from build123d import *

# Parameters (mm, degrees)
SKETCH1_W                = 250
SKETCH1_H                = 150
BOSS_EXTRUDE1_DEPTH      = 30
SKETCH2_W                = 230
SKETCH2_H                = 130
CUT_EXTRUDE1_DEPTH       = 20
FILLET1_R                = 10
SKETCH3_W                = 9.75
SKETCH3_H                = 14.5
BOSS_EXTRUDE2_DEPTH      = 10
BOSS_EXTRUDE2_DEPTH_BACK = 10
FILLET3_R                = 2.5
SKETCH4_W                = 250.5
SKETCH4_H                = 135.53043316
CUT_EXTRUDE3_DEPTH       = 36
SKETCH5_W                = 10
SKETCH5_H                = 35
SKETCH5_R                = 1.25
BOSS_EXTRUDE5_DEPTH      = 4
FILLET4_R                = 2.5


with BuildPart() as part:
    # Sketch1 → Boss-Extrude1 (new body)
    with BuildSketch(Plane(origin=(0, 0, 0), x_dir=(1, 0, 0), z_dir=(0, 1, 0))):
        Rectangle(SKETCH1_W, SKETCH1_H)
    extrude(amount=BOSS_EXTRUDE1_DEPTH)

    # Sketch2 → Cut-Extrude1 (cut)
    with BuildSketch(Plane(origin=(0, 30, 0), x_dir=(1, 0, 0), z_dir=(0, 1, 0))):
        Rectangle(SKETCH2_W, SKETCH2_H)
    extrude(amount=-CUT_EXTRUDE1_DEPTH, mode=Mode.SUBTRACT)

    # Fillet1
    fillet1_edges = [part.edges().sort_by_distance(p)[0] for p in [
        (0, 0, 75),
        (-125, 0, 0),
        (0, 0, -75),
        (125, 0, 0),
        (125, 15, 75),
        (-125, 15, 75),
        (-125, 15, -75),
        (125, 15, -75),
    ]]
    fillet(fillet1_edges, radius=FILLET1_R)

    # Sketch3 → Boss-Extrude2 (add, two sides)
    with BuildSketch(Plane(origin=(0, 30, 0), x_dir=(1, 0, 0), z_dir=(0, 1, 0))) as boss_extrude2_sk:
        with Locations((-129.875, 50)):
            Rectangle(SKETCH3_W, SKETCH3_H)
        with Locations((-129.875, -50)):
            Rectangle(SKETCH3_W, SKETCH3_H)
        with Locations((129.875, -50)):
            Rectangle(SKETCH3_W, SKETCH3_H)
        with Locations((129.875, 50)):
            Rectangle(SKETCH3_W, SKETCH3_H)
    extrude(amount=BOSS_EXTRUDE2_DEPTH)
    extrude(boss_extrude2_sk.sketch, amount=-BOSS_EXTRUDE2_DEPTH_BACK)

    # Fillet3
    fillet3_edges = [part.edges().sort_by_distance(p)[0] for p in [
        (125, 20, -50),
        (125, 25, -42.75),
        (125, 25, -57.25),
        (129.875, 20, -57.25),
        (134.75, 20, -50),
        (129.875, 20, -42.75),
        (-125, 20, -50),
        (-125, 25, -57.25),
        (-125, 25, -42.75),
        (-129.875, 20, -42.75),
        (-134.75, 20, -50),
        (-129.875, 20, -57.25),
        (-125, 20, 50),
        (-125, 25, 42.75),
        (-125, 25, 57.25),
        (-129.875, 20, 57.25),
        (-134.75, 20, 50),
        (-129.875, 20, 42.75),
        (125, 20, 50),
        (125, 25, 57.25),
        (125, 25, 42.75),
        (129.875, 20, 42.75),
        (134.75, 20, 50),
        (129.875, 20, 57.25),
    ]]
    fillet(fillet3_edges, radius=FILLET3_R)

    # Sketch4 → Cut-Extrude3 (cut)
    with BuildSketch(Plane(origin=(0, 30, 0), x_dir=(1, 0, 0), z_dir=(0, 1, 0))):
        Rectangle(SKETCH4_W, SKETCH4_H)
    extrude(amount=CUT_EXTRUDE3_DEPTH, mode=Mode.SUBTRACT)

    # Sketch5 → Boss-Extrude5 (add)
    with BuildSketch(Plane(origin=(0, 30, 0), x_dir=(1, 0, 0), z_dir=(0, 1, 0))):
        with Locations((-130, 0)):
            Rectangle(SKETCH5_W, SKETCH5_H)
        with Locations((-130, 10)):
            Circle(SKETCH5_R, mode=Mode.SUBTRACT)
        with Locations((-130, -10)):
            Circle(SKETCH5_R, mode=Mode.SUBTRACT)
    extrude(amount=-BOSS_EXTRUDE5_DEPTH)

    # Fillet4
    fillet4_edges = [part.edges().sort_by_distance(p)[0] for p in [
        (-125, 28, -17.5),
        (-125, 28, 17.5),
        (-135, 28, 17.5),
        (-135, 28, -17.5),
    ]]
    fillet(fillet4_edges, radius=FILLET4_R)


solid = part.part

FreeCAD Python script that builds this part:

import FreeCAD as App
import Part
import Sketcher
from FreeCAD import Vector
Q = App.Units.Quantity


def edges_at(feature, points):
    """Names of the edges that pass closest to the given points."""
    edges = feature.Shape.Edges
    near = lambda p: min(range(len(edges)), key=lambda i: edges[i].distToShape(Part.Vertex(*p))[0])
    return sorted({f"Edge{near(p) + 1}" for p in points})


def add_polygon(sketch, points):
    """Adds a closed chain of lines whose ends are joined by coincident constraints."""
    first, n = sketch.GeometryCount, len(points)
    for a, b in zip(points, points[1:] + points[:1]):
        sketch.addGeometry(Part.LineSegment(App.Vector(*a, 0), App.Vector(*b, 0)), False)
    for i in range(n):
        sketch.addConstraint(Sketcher.Constraint("Coincident", first + i, 2, first + (i + 1) % n, 1))

doc = App.newDocument("Part")
body = doc.addObject("PartDesign::Body", "Body")

# Sketch on XZ plane
sketch1 = doc.addObject("Sketcher::SketchObject", "Sketch")
body.addObject(sketch1)
sketch1.AttachmentSupport = (doc.XZ_Plane, [""])
sketch1.MapMode = "FlatFace"
add_polygon(sketch1, [(-125, -75), (-125, 75), (125, 75), (125, -75)])  # lines 0-3
sketch1.addConstraint([
    Sketcher.Constraint("Vertical", 0),
    Sketcher.Constraint("Horizontal", 1),
    Sketcher.Constraint("Vertical", 2),
    Sketcher.Constraint("Horizontal", 3),
    Sketcher.Constraint("Symmetric", 0, 2, 2, 2, -1, 1),
    Sketcher.Constraint("DistanceX", 1, 1, 1, 2, Q("250 mm")),
    Sketcher.Constraint("DistanceY", 0, 1, 0, 2, Q("150 mm")),
])
pad1 = doc.addObject("PartDesign::Pad", "Pad")
body.addObject(pad1)
pad1.Profile = sketch1
pad1.Length = 30
pad1.Reversed = True

# Sketch on XZ plane
sketch2 = doc.addObject("Sketcher::SketchObject", "Sketch001")
body.addObject(sketch2)
sketch2.AttachmentSupport = (doc.XZ_Plane, [""])
sketch2.MapMode = "FlatFace"
sketch2.AttachmentOffset = App.Placement(Vector(0, 0, -30), App.Rotation())
add_polygon(sketch2, [(-115, -65), (-115, 65), (115, 65), (115, -65)])  # lines 0-3
sketch2.addConstraint([
    Sketcher.Constraint("Vertical", 0),
    Sketcher.Constraint("Horizontal", 1),
    Sketcher.Constraint("Vertical", 2),
    Sketcher.Constraint("Horizontal", 3),
    Sketcher.Constraint("Symmetric", 0, 2, 2, 2, -1, 1),
    Sketcher.Constraint("DistanceX", 1, 1, 1, 2, Q("230 mm")),
    Sketcher.Constraint("DistanceY", 0, 1, 0, 2, Q("130 mm")),
])
pocket1 = doc.addObject("PartDesign::Pocket", "Pocket")
body.addObject(pocket1)
pocket1.Profile = sketch2
pocket1.Length = 20
pocket1.Reversed = True
doc.recompute()

fillet = doc.addObject("PartDesign::Fillet", "Fillet")
body.addObject(fillet)
fillet.Base = (pocket1, edges_at(pocket1, [
    (0, 0, 75),
    (-125, 0, 0),
    (0, 0, -75),
    (125, 0, 0),
    (125, 15, 75),
    (-125, 15, 75),
    (-125, 15, -75),
    (125, 15, -75),
]))
fillet.Radius = 10

# Sketch on XZ plane
sketch3 = doc.addObject("Sketcher::SketchObject", "Sketch002")
body.addObject(sketch3)
sketch3.AttachmentSupport = (doc.XZ_Plane, [""])
sketch3.MapMode = "FlatFace"
sketch3.AttachmentOffset = App.Placement(Vector(0, 0, -30), App.Rotation())
add_polygon(sketch3, [(-135, -57), (-135, -43), (-125, -43), (-125, -57)])  # lines 0-3
add_polygon(sketch3, [(-135, 43), (-135, 57), (-125, 57), (-125, 43)])  # lines 4-7
add_polygon(sketch3, [(125, 43), (125, 57), (135, 57), (135, 43)])  # lines 8-11
add_polygon(sketch3, [(125, -57), (125, -43), (135, -43), (135, -57)])  # lines 12-15
sketch3.addConstraint([
    Sketcher.Constraint("Vertical", 0),
    Sketcher.Constraint("Horizontal", 1),
    Sketcher.Constraint("Vertical", 2),
    Sketcher.Constraint("Horizontal", 3),
    Sketcher.Constraint("Vertical", 4),
    Sketcher.Constraint("Horizontal", 5),
    Sketcher.Constraint("Vertical", 6),
    Sketcher.Constraint("Horizontal", 7),
    Sketcher.Constraint("Vertical", 8),
    Sketcher.Constraint("Horizontal", 9),
    Sketcher.Constraint("Vertical", 10),
    Sketcher.Constraint("Horizontal", 11),
    Sketcher.Constraint("Vertical", 12),
    Sketcher.Constraint("Horizontal", 13),
    Sketcher.Constraint("Vertical", 14),
    Sketcher.Constraint("Horizontal", 15),
    Sketcher.Constraint("Symmetric", 2, 2, 8, 2, -1, 1),
    Sketcher.Constraint("Symmetric", 0, 2, 10, 2, -1, 1),
    Sketcher.Constraint("Symmetric", 6, 2, 12, 2, -1, 1),
    Sketcher.Constraint("Symmetric", 4, 2, 14, 2, -1, 1),
    Sketcher.Constraint("Symmetric", 5, 2, 8, 2, -2),
    Sketcher.Constraint("Symmetric", 7, 2, 10, 2, -2),
    Sketcher.Constraint("DistanceY", 0, 1, 0, 2, Q("14.5 mm")),
    Sketcher.Constraint("DistanceX", 1, 2, -1, 1, Q("125 mm")),
    Sketcher.Constraint("DistanceY", 0, 2, 4, 2, Q("100 mm")),
    Sketcher.Constraint("DistanceX", 1, 1, 1, 2, Q("9.75 mm")),
])
pad2 = doc.addObject("PartDesign::Pad", "Pad001")
body.addObject(pad2)
pad2.Profile = sketch3
pad2.Type = "TwoLengths"
pad2.Length = 10
pad2.Length2 = 10
pad2.Reversed = True
doc.recompute()

fillet2 = doc.addObject("PartDesign::Fillet", "Fillet001")
body.addObject(fillet2)
fillet2.Base = (pad2, edges_at(pad2, [
    (125, 20, -50),
    (125, 25, -42.75),
    (125, 25, -57.25),
    (129.875, 20, -57.25),
    (134.75, 20, -50),
    (129.875, 20, -42.75),
    (-125, 20, -50),
    (-125, 25, -57.25),
    (-125, 25, -42.75),
    (-129.875, 20, -42.75),
    (-134.75, 20, -50),
    (-129.875, 20, -57.25),
    (-125, 20, 50),
    (-125, 25, 42.75),
    (-125, 25, 57.25),
    (-129.875, 20, 57.25),
    (-134.75, 20, 50),
    (-129.875, 20, 42.75),
    (125, 20, 50),
    (125, 25, 57.25),
    (125, 25, 42.75),
    (129.875, 20, 42.75),
    (134.75, 20, 50),
    (129.875, 20, 57.25),
]))
fillet2.Radius = 2.5

# Sketch on XZ plane
sketch4 = doc.addObject("Sketcher::SketchObject", "Sketch003")
body.addObject(sketch4)
sketch4.AttachmentSupport = (doc.XZ_Plane, [""])
sketch4.MapMode = "FlatFace"
sketch4.AttachmentOffset = App.Placement(Vector(0, 0, -30), App.Rotation())
add_polygon(sketch4, [(-125, -68), (-125, 68), (125, 68), (125, -68)])  # lines 0-3
sketch4.addConstraint([
    Sketcher.Constraint("Vertical", 0),
    Sketcher.Constraint("Horizontal", 1),
    Sketcher.Constraint("Vertical", 2),
    Sketcher.Constraint("Horizontal", 3),
    Sketcher.Constraint("Symmetric", 0, 2, 2, 2, -1, 1),
    Sketcher.Constraint("DistanceX", 1, 1, 1, 2, Q("250.5 mm")),
    Sketcher.Constraint("DistanceY", 0, 1, 0, 2, Q("135.530433 mm")),
])
pocket2 = doc.addObject("PartDesign::Pocket", "Pocket001")
body.addObject(pocket2)
pocket2.Profile = sketch4
pocket2.Length = 36

# Sketch on XZ plane
sketch5 = doc.addObject("Sketcher::SketchObject", "Sketch004")
body.addObject(sketch5)
sketch5.AttachmentSupport = (doc.XZ_Plane, [""])
sketch5.MapMode = "FlatFace"
sketch5.AttachmentOffset = App.Placement(Vector(0, 0, -30), App.Rotation())
add_polygon(sketch5, [(-135, -17.5), (-135, 17.5), (-125, 17.5), (-125, -17.5)])  # lines 0-3
sketch5.addGeometry(Part.Circle(Vector(-130, 10, 0), Vector(0, 0, 1), 1.2), False)  # 4
sketch5.addGeometry(Part.Circle(Vector(-130, -10, 0), Vector(0, 0, 1), 1.2), False)  # 5
sketch5.addConstraint([
    Sketcher.Constraint("Vertical", 0),
    Sketcher.Constraint("Horizontal", 1),
    Sketcher.Constraint("Vertical", 2),
    Sketcher.Constraint("Horizontal", 3),
    Sketcher.Constraint("Equal", 4, 5),
    Sketcher.Constraint("Symmetric", 4, 3, 5, 3, -1),
    Sketcher.Constraint("Diameter", 4, Q("2.5 mm")),
    Sketcher.Constraint("DistanceX", 1, 1, 1, 2, Q("10 mm")),
    Sketcher.Constraint("DistanceY", 0, 1, 0, 2, Q("35 mm")),
    Sketcher.Constraint("DistanceX", 4, 3, -1, 1, Q("130 mm")),
    Sketcher.Constraint("DistanceY", -1, 1, 4, 3, Q("10 mm")),
    Sketcher.Constraint("DistanceX", 0, 2, -1, 1, Q("135 mm")),
    Sketcher.Constraint("DistanceY", -1, 1, 0, 2, Q("17.5 mm")),
])
pad3 = doc.addObject("PartDesign::Pad", "Pad002")
body.addObject(pad3)
pad3.Profile = sketch5
pad3.Length = 4
doc.recompute()

fillet3 = doc.addObject("PartDesign::Fillet", "Fillet002")
body.addObject(fillet3)
fillet3.Base = (pad3, edges_at(pad3, [
    (-125, 28, -17.5),
    (-125, 28, 17.5),
    (-135, 28, 17.5),
    (-135, 28, -17.5),
]))
fillet3.Radius = 2.5

doc.recompute()
